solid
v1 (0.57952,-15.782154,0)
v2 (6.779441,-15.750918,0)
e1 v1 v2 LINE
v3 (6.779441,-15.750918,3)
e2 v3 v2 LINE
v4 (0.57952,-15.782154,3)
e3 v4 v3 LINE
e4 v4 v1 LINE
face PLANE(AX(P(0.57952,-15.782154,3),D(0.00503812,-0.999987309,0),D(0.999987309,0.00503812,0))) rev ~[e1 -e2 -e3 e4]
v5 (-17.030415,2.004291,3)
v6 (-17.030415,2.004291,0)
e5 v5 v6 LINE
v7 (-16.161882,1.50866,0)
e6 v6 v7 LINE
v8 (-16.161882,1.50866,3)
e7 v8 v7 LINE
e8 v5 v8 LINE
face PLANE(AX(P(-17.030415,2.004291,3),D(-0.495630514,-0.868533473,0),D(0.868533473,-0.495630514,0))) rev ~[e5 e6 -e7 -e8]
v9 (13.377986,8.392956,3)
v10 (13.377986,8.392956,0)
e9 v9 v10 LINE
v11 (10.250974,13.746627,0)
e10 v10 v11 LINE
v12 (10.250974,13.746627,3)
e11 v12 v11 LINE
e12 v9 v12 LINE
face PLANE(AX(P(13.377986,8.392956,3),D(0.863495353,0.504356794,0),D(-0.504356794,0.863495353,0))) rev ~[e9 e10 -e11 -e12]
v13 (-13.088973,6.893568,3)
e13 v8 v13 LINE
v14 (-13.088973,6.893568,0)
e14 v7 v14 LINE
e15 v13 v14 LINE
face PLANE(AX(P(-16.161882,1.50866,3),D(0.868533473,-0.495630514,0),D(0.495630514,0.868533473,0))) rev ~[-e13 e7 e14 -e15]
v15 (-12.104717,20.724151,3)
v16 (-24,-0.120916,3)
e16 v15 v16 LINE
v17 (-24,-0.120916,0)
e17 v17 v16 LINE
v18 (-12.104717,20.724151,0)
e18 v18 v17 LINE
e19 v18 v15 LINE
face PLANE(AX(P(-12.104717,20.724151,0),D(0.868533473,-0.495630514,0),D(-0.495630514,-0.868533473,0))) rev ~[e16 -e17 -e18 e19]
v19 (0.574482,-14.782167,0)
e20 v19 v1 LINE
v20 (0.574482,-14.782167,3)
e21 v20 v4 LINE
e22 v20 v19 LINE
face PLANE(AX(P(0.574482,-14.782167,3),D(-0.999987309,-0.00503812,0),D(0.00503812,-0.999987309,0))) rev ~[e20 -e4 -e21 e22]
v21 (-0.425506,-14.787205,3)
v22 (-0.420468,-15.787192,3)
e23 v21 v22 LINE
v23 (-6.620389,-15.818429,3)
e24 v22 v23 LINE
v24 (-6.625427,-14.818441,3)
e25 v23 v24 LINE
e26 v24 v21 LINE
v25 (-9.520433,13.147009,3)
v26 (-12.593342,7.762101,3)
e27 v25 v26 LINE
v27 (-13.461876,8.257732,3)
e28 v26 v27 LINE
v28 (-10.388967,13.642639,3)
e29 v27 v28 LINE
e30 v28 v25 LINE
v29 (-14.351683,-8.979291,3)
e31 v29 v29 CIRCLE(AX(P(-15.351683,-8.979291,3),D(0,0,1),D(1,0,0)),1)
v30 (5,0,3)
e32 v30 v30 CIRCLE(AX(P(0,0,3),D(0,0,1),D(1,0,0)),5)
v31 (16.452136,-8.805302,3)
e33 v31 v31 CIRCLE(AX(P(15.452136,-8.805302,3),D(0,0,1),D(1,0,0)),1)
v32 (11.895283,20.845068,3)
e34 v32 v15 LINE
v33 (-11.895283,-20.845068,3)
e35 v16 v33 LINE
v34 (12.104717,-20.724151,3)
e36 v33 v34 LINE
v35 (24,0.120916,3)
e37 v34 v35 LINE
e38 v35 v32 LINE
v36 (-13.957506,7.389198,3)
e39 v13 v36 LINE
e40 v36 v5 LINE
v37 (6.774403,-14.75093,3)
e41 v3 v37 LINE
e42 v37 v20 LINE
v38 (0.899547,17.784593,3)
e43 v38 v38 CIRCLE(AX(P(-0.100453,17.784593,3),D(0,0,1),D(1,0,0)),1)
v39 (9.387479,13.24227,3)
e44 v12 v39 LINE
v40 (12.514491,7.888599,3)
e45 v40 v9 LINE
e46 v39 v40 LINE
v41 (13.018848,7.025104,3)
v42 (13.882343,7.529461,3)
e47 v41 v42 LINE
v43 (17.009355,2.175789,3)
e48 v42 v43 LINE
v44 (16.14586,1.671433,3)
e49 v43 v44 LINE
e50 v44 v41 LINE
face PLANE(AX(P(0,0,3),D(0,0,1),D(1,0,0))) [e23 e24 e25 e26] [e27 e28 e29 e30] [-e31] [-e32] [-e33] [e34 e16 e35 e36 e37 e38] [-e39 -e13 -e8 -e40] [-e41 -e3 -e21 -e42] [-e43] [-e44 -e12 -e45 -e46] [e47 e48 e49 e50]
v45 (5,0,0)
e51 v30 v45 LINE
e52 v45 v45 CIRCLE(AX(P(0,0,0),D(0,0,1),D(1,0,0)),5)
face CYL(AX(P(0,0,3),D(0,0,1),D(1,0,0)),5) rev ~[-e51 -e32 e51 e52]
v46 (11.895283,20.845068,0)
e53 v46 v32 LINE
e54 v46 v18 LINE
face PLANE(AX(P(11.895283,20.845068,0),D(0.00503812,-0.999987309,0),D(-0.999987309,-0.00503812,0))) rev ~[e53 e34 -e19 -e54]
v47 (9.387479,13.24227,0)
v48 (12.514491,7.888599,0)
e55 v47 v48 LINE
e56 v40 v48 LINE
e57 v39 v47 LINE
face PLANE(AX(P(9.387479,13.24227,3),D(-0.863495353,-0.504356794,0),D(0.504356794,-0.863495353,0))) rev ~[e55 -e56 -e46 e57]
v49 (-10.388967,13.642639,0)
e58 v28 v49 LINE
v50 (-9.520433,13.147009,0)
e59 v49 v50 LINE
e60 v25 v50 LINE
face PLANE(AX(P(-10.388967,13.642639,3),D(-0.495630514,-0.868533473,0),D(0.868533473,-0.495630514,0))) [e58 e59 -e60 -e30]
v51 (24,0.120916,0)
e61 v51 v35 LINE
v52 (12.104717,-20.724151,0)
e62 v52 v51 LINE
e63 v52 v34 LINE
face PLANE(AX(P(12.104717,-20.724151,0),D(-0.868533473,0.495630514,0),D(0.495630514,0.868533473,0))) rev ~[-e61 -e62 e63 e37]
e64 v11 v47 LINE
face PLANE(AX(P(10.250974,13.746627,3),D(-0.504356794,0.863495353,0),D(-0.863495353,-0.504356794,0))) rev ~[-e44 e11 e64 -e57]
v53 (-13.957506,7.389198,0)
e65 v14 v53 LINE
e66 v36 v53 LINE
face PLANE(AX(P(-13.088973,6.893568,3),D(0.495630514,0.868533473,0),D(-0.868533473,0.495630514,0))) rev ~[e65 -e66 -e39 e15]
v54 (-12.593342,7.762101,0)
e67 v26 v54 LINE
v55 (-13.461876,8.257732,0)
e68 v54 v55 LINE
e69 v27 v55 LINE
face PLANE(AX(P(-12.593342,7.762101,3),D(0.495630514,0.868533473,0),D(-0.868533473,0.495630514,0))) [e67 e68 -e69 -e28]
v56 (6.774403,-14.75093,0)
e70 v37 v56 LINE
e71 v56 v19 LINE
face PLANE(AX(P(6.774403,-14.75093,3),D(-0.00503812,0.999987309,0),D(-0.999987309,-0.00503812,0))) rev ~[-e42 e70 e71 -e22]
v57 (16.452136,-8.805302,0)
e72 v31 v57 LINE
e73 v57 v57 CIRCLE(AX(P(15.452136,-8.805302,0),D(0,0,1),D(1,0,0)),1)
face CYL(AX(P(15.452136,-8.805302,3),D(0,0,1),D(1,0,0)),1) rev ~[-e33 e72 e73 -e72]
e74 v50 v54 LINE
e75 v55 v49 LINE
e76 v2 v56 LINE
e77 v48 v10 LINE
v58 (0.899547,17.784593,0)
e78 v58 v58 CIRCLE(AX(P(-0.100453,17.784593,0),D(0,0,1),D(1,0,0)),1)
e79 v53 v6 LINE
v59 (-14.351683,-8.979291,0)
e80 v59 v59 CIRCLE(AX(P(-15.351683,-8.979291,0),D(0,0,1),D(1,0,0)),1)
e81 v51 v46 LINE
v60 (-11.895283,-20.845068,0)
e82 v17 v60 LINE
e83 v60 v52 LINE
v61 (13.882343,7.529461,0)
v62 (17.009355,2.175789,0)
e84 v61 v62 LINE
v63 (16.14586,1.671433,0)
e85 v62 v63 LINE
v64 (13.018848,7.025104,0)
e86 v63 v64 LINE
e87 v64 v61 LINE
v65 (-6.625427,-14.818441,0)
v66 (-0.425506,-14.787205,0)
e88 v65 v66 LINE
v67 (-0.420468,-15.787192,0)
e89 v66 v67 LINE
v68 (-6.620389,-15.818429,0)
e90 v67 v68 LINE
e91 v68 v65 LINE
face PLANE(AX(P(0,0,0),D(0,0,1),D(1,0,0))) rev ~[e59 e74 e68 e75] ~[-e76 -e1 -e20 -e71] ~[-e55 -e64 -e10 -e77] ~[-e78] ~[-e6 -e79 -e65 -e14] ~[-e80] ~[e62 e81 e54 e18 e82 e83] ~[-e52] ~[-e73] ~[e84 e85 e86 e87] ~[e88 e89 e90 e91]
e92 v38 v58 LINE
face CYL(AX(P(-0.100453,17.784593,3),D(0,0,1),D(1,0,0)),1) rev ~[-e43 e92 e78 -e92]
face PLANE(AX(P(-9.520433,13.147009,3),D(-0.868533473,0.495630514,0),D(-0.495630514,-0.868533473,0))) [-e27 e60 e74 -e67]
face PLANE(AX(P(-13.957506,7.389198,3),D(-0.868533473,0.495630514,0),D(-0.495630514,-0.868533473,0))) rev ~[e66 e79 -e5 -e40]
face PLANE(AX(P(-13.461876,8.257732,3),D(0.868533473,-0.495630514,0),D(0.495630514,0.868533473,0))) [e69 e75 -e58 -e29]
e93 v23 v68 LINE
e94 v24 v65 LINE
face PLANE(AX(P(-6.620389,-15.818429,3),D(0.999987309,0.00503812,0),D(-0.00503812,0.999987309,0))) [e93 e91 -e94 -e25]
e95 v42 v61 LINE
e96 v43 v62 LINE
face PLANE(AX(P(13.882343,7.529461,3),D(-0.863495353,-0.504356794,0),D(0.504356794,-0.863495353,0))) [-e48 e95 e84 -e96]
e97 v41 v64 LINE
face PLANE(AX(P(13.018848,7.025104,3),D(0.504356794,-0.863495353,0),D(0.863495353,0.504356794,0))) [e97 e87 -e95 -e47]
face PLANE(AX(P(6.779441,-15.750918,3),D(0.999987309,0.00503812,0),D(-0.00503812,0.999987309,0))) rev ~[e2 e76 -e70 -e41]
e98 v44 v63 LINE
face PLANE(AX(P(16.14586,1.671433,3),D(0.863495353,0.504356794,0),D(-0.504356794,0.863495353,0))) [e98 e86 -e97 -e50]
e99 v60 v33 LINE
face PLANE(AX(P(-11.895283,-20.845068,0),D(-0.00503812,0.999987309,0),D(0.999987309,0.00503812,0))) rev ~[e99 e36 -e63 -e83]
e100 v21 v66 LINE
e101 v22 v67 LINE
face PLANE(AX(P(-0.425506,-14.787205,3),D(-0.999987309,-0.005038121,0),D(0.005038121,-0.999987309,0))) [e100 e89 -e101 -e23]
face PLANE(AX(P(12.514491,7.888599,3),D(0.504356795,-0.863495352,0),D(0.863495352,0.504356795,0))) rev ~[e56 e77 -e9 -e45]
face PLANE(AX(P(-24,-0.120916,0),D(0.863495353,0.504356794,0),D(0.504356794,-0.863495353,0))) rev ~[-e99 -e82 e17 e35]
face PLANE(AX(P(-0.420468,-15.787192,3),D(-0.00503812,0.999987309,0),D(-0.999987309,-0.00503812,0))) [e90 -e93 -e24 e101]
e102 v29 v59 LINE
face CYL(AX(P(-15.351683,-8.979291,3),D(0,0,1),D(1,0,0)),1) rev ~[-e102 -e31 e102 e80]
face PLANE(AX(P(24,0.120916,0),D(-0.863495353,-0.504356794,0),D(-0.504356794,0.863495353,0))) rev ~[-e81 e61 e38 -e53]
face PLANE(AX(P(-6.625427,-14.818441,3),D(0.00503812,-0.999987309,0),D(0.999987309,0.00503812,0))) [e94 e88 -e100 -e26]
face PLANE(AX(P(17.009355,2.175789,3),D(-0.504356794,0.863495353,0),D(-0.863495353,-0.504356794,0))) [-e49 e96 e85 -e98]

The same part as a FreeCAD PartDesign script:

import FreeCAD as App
import Part
import Sketcher

V = App.Vector

doc = App.newDocument("Part")
params = doc.addObject("Spreadsheet::Sheet", "Params")
for row, (alias, value) in enumerate([
    ("pad1_length", "3 mm"),
    ("sketch2_length", "1 mm"),
    ("sketch2_length2", "6.2 mm"),
    ("pocket1_length", "3 mm"),
    ("sketch3_diameter", "10 mm"),
    ("pocket2_length", "3 mm"),
    ("sketch4_diameter", "2 mm"),
    ("pocket3_length", "3 mm"),
], start=1):
    params.set(f"A{row}", alias)
    params.set(f"B{row}", "=" + value)
    params.setAlias(f"B{row}", alias)

body = doc.addObject("PartDesign::Body", "Body")

# Sketch on XY plane
sketch1 = body.newObject("Sketcher::SketchObject", "Sketch")
sketch1.AttachmentSupport = (doc.getObject("XY_Plane"), [""])
sketch1.MapMode = "FlatFace"
sketch1.addGeometry([
    Part.LineSegment(V(12, 21, 0), V(-12, 21, 0)),  # 0
    Part.LineSegment(V(-12, 21, 0), V(-24, 0, 0)),  # 1
    Part.LineSegment(V(-24, 0, 0), V(-12, -21, 0)),  # 2
    Part.LineSegment(V(-12, -21, 0), V(12, -21, 0)),  # 3
    Part.LineSegment(V(12, -21, 0), V(24, 0, 0)),  # 4
    Part.LineSegment(V(24, 0, 0), V(12, 21, 0)),  # 5
], False)
sketch1.addConstraint([
    Sketcher.Constraint("Coincident", 0, 2, 1, 1),
    Sketcher.Constraint("Coincident", 1, 2, 2, 1),
    Sketcher.Constraint("Coincident", 2, 2, 3, 1),
    Sketcher.Constraint("Coincident", 3, 2, 4, 1),
    Sketcher.Constraint("Coincident", 4, 2, 5, 1),
    Sketcher.Constraint("Coincident", 5, 2, 0, 1),
    Sketcher.Constraint("Symmetric", 0, 2, 3, 2, -1, 1),
    Sketcher.Constraint("Symmetric", 1, 2, 4, 2, -1, 1),
    Sketcher.Constraint("Symmetric", 2, 2, 5, 2, -1, 1),
    Sketcher.Constraint("Equal", 0, 1),
    Sketcher.Constraint("Equal", 1, 2),
    Sketcher.Constraint("DistanceX", 1, 2, -1, 1, 24.0),
    Sketcher.Constraint("DistanceX", 2, 2, 3, 2, 24.0),
    Sketcher.Constraint("DistanceY", -1, 1, 0, 2, 20.724151),
    Sketcher.Constraint("DistanceY", 2, 2, 1, 2, 20.724151),
])
pad1 = body.newObject("PartDesign::Pad", "Pad")
pad1.Profile = sketch1
pad1.setExpression("Length", "Params.pad1_length")

# Sketch on XY plane
sketch2 = body.newObject("Sketcher::SketchObject", "Sketch001")
sketch2.AttachmentSupport = (doc.getObject("XY_Plane"), [""])
sketch2.MapMode = "FlatFace"
sketch2.AttachmentOffset = App.Placement(V(0, 0, 3), App.Rotation())
sketch2.addGeometry([
    Part.LineSegment(V(10.3, 13.7, 0), V(9.4, 13.2, 0)),  # 0
    Part.LineSegment(V(9.4, 13.2, 0), V(12.5, 7.9, 0)),  # 1
    Part.LineSegment(V(12.5, 7.9, 0), V(13.4, 8.4, 0)),  # 2
    Part.LineSegment(V(13.4, 8.4, 0), V(10.3, 13.7, 0)),  # 3
    Part.LineSegment(V(13.9, 7.5, 0), V(13, 7, 0)),  # 4
    Part.LineSegment(V(13, 7, 0), V(16.1, 1.7, 0)),  # 5
    Part.LineSegment(V(16.1, 1.7, 0), V(17, 2.2, 0)),  # 6
    Part.LineSegment(V(17, 2.2, 0), V(13.9, 7.5, 0)),  # 7
    Part.LineSegment(V(6.8, -15.8, 0), V(6.8, -14.8, 0)),  # 8
    Part.LineSegment(V(6.8, -14.8, 0), V(0.6, -14.8, 0)),  # 9
    Part.LineSegment(V(0.6, -14.8, 0), V(0.6, -15.8, 0)),  # 10
    Part.LineSegment(V(0.6, -15.8, 0), V(6.8, -15.8, 0)),  # 11
    Part.LineSegment(V(-0.4, -15.8, 0), V(-0.4, -14.8, 0)),  # 12
    Part.LineSegment(V(-0.4, -14.8, 0), V(-6.6, -14.8, 0)),  # 13
    Part.LineSegment(V(-6.6, -14.8, 0), V(-6.6, -15.8, 0)),  # 14
    Part.LineSegment(V(-6.6, -15.8, 0), V(-0.4, -15.8, 0)),  # 15
    Part.LineSegment(V(-17, 2, 0), V(-16.2, 1.5, 0)),  # 16
    Part.LineSegment(V(-16.2, 1.5, 0), V(-13.1, 6.9, 0)),  # 17
    Part.LineSegment(V(-13.1, 6.9, 0), V(-14, 7.4, 0)),  # 18
    Part.LineSegment(V(-14, 7.4, 0), V(-17, 2, 0)),  # 19
    Part.LineSegment(V(-13.5, 8.3, 0), V(-12.6, 7.8, 0)),  # 20
    Part.LineSegment(V(-12.6, 7.8, 0), V(-9.5, 13.1, 0)),  # 21
    Part.LineSegment(V(-9.5, 13.1, 0), V(-10.4, 13.6, 0)),  # 22
    Part.LineSegment(V(-10.4, 13.6, 0), V(-13.5, 8.3, 0)),  # 23
], False)
sketch2.addConstraint([
    Sketcher.Constraint("Coincident", 0, 2, 1, 1),
    Sketcher.Constraint("Coincident", 1, 2, 2, 1),
    Sketcher.Constraint("Coincident", 2, 2, 3, 1),
    Sketcher.Constraint("Coincident", 3, 2, 0, 1),
    Sketcher.Constraint("Coincident", 4, 2, 5, 1),
    Sketcher.Constraint("Coincident", 5, 2, 6, 1),
    Sketcher.Constraint("Coincident", 6, 2, 7, 1),
    Sketcher.Constraint("Coincident", 7, 2, 4, 1),
    Sketcher.Constraint("Coincident", 8, 2, 9, 1),
    Sketcher.Constraint("Coincident", 9, 2, 10, 1),
    Sketcher.Constraint("Coincident", 10, 2, 11, 1),
    Sketcher.Constraint("Coincident", 11, 2, 8, 1),
    Sketcher.Constraint("Coincident", 12, 2, 13, 1),
    Sketcher.Constraint("Coincident", 13, 2, 14, 1),
    Sketcher.Constraint("Coincident", 14, 2, 15, 1),
    Sketcher.Constraint("Coincident", 15, 2, 12, 1),
    Sketcher.Constraint("Coincident", 16, 2, 17, 1),
    Sketcher.Constraint("Coincident", 17, 2, 18, 1),
    Sketcher.Constraint("Coincident", 18, 2, 19, 1),
    Sketcher.Constraint("Coincident", 19, 2, 16, 1),
    Sketcher.Constraint("Coincident", 20, 2, 21, 1),
    Sketcher.Constraint("Coincident", 21, 2, 22, 1),
    Sketcher.Constraint("Coincident", 22, 2, 23, 1),
    Sketcher.Constraint("Coincident", 23, 2, 20, 1),
    Sketcher.Constraint("Perpendicular", 0, 1),
    Sketcher.Constraint("Perpendicular", 1, 2),
    Sketcher.Constraint("Perpendicular", 2, 3),
    Sketcher.Constraint("Perpendicular", 3, 4),
    Sketcher.Constraint("Perpendicular", 4, 5),
    Sketcher.Constraint("Perpendicular", 5, 6),
    Sketcher.Constraint("Perpendicular", 6, 7),
    Sketcher.Constraint("Perpendicular", 8, 9),
    Sketcher.Constraint("Perpendicular", 9, 10),
    Sketcher.Constraint("Perpendicular", 10, 11),
    Sketcher.Constraint("Perpendicular", 11, 12),
    Sketcher.Constraint("Perpendicular", 12, 13),
    Sketcher.Constraint("Perpendicular", 13, 14),
    Sketcher.Constraint("Perpendicular", 14, 15),
    Sketcher.Constraint("Perpendicular", 16, 17),
    Sketcher.Constraint("Perpendicular", 17, 18),
    Sketcher.Constraint("Perpendicular", 18, 19),
    Sketcher.Constraint("Perpendicular", 19, 20),
    Sketcher.Constraint("Perpendicular", 20, 21),
    Sketcher.Constraint("Perpendicular", 21, 22),
    Sketcher.Constraint("Perpendicular", 22, 23),
    Sketcher.Constraint("Equal", 2, 4),
    Sketcher.Constraint("Equal", 3, 5),
    Sketcher.Constraint("Equal", 6, 8),
    Sketcher.Constraint("Equal", 7, 9),
    Sketcher.Constraint("Equal", 10, 12),
    Sketcher.Constraint("Equal", 11, 13),
    Sketcher.Constraint("Equal", 14, 16),
    Sketcher.Constraint("Equal", 15, 17),
    Sketcher.Constraint("Equal", 18, 20),
    Sketcher.Constraint("Equal", 19, 21),
    Sketcher.Constraint("Distance", 0, 1.0),
    Sketcher.Constraint("Distance", 1, 6.2),
    Sketcher.Constraint("DistanceY", -1, 1, 1, 2, 7.888599),
    Sketcher.Constraint("DistanceY", -1, 1, 18, 2, 7.389198),
    Sketcher.Constraint("DistanceY", -1, 1, 20, 2, 7.762101),
    Sketcher.Constraint("DistanceY", 9, 2, 5, 2, 16.453599),
    Sketcher.Constraint("DistanceY", 13, 2, 16, 2, 16.327101),
    Sketcher.Constraint("DistanceX", -1, 1, 0, 2, 9.387479),
    Sketcher.Constraint("DistanceY", -1, 1, 0, 2, 13.24227),
    Sketcher.Constraint("DistanceX", -1, 1, 5, 2, 16.14586),
    Sketcher.Constraint("DistanceY", -1, 1, 6, 2, 2.175789),
    Sketcher.Constraint("DistanceY", 8, 2, -1, 1, 14.75093),
    Sketcher.Constraint("DistanceX", -1, 1, 9, 2, 0.574482),
    Sketcher.Constraint("DistanceY", 13, 2, -1, 1, 14.818441),
    Sketcher.Constraint("DistanceX", 14, 2, -1, 1, 6.620389),
    Sketcher.Constraint("DistanceX", 16, 2, -1, 1, 16.161882),
    Sketcher.Constraint("DistanceX", 17, 2, 20, 2, 0.495631),
])
sketch2.setExpression("Constraints[55]", "Params.sketch2_length")
sketch2.setExpression("Constraints[56]", "Params.sketch2_length2")
pocket1 = body.newObject("PartDesign::Pocket", "Pocket")
pocket1.Profile = sketch2
pocket1.setExpression("Length", "Params.pocket1_length")

# Sketch on XY plane
sketch3 = body.newObject("Sketcher::SketchObject", "Sketch002")
sketch3.AttachmentSupport = (doc.getObject("XY_Plane"), [""])
sketch3.MapMode = "FlatFace"
sketch3.AttachmentOffset = App.Placement(V(0, 0, 3), App.Rotation())
sketch3.addGeometry(Part.Circle(V(0, 0, 0), V(0, 0, 1), 5), False)
sketch3.addConstraint([
    Sketcher.Constraint("Coincident", 0, 3, -1, 1),
    Sketcher.Constraint("Diameter", 0, 10.0),
])
sketch3.setExpression("Constraints[1]", "Params.sketch3_diameter")
pocket2 = body.newObject("PartDesign::Pocket", "Pocket001")
pocket2.Profile = sketch3
pocket2.setExpression("Length", "Params.pocket2_length")

# Sketch on XY plane
sketch4 = body.newObject("Sketcher::SketchObject", "Sketch003")
sketch4.AttachmentSupport = (doc.getObject("XY_Plane"), [""])
sketch4.MapMode = "FlatFace"
sketch4.AttachmentOffset = App.Placement(V(0, 0, 3), App.Rotation())
sketch4.addGeometry([
    Part.Circle(V(-0.1, 17.8, 0), V(0, 0, 1), 1),
    Part.Circle(V(15.5, -8.8, 0), V(0, 0, 1), 1),
    Part.Circle(V(-15.4, -9, 0), V(0, 0, 1), 1),
], False)
sketch4.addConstraint([
    Sketcher.Constraint("Equal", 0, 1),
    Sketcher.Constraint("Equal", 1, 2),
    Sketcher.Constraint("Diameter", 0, 2.0),
    Sketcher.Constraint("DistanceY", 1, 3, -1, 1, 8.805302),
    Sketcher.Constraint("DistanceY", 2, 3, -1, 1, 8.979291),
    Sketcher.Constraint("DistanceX", 0, 3, 1, 3, 15.552589),
    Sketcher.Constraint("DistanceX", 2, 3, 0, 3, 15.25123),
    Sketcher.Constraint("DistanceX", 0, 3, -1, 1, 0.100453),
    Sketcher.Constraint("DistanceY", -1, 1, 0, 3, 17.784593),
])
sketch4.setExpression("Constraints[2]", "Params.sketch4_diameter")
pocket3 = body.newObject("PartDesign::Pocket", "Pocket002")
pocket3.Profile = sketch4
pocket3.setExpression("Length", "Params.pocket3_length")

doc.recompute()
